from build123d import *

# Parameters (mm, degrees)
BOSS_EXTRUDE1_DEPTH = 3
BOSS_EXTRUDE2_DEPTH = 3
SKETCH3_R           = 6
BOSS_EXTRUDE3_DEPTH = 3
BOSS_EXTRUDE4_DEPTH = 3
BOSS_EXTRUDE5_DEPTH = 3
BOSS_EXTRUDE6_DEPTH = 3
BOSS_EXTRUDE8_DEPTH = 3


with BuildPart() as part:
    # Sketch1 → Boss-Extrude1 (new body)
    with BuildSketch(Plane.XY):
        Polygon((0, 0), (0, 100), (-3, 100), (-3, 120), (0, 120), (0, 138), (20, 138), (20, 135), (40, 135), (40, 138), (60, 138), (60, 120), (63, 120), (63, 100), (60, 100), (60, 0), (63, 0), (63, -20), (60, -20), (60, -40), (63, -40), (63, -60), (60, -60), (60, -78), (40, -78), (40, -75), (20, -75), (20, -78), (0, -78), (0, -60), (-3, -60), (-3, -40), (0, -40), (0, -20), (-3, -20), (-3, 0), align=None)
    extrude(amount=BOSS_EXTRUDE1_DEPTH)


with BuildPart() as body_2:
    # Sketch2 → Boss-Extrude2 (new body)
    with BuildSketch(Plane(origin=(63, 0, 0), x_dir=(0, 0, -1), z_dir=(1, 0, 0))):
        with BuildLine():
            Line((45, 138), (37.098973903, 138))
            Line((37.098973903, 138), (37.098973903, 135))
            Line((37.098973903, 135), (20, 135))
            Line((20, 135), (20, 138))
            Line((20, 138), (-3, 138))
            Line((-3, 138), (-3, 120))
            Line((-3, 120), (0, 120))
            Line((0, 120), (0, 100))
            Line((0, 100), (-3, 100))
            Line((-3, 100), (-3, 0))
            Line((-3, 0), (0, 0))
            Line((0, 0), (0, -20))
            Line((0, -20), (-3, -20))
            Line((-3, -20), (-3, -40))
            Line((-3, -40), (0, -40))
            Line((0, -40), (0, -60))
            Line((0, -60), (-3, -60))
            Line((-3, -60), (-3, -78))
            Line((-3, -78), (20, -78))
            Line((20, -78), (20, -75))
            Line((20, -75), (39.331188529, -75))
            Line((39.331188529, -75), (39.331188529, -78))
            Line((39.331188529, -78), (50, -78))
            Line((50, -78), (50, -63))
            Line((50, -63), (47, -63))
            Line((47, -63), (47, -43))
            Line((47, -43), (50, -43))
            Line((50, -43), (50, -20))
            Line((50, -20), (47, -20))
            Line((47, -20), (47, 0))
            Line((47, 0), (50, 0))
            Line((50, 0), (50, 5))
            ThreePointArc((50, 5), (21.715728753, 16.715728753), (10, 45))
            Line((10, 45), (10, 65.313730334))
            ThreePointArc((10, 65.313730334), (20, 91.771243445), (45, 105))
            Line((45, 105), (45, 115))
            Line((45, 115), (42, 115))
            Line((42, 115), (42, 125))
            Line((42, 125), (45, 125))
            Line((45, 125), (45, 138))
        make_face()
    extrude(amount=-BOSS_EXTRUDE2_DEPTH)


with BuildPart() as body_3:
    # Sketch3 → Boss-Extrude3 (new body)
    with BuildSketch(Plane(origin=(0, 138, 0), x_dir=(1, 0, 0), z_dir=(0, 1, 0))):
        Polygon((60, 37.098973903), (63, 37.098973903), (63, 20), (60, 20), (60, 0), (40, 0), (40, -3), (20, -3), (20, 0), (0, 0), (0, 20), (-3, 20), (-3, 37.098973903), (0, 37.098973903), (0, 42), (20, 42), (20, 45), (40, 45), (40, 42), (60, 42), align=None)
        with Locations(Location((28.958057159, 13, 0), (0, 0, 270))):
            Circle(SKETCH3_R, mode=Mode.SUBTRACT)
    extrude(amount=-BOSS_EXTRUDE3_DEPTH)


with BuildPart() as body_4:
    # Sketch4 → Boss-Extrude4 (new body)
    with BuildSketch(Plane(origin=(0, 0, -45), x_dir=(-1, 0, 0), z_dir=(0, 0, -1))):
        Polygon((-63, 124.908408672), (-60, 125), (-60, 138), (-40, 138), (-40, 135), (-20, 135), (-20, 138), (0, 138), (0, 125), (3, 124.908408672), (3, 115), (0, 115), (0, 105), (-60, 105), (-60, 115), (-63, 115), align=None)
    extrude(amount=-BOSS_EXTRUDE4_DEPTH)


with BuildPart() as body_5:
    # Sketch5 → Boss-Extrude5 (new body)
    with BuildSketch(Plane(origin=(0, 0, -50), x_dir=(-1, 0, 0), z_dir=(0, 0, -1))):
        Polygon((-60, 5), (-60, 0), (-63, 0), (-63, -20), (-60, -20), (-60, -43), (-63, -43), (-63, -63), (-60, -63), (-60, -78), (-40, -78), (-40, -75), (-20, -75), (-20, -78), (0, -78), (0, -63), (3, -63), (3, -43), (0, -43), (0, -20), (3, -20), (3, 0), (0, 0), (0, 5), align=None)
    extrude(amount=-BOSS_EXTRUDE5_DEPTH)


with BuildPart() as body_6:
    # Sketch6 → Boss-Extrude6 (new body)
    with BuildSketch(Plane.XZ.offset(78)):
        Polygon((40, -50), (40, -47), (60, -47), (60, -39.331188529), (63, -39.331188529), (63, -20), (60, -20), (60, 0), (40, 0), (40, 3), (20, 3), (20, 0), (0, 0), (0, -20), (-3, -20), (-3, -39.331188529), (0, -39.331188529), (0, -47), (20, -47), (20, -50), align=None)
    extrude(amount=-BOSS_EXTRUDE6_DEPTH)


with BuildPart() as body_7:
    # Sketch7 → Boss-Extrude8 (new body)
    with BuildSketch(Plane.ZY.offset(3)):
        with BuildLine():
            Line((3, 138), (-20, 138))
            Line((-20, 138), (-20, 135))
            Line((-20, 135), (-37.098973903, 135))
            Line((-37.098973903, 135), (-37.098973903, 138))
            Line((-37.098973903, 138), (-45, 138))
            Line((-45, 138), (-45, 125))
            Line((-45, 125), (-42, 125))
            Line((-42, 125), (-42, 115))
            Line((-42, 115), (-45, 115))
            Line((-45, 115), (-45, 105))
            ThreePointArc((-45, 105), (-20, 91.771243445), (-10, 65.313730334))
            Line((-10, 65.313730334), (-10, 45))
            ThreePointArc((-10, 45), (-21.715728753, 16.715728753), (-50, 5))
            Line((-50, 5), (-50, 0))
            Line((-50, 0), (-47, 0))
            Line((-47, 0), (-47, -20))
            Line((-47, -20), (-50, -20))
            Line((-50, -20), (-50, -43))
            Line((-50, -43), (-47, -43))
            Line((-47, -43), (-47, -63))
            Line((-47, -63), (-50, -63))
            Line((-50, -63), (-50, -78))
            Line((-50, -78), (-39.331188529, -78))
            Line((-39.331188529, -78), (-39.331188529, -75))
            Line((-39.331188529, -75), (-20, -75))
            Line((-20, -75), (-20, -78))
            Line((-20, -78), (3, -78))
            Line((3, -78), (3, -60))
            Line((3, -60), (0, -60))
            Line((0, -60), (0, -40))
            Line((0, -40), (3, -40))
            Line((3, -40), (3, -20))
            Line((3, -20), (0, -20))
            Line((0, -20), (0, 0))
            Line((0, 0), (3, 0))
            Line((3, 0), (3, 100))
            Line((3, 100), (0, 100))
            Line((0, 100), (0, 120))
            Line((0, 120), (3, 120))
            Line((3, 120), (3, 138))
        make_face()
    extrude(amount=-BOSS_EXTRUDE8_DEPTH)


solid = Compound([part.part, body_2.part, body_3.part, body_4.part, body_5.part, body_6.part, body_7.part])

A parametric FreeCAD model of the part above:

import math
import FreeCAD as App
import Part
import Sketcher
from FreeCAD import Vector


def add_polygon(sketch, points):
    """Adds a closed chain of lines whose ends are joined by coincident constraints."""
    first, n = sketch.GeometryCount, len(points)
    for a, b in zip(points, points[1:] + points[:1]):
        sketch.addGeometry(Part.LineSegment(App.Vector(*a, 0), App.Vector(*b, 0)), False)
    for i in range(n):
        sketch.addConstraint(Sketcher.Constraint("Coincident", first + i, 2, first + (i + 1) % n, 1))

doc = App.newDocument("Part")
body = doc.addObject("PartDesign::Body", "Body")

# Sketch on XY plane
sketch1 = doc.addObject("Sketcher::SketchObject", "Sketch")
body.addObject(sketch1)
sketch1.AttachmentSupport = (doc.XY_Plane, [""])
sketch1.MapMode = "FlatFace"
add_polygon(sketch1, [(0, 100), (0, 0), (-3, 0), (-3, -20), (0, -20), (0, -40), (-3, -40), (-3, -60), (0, -60), (0, -78), (20, -78), (20, -75), (40, -75), (40, -78), (60, -78), (60, -60), (63, -60), (63, -40), (60, -40), (60, -20), (63, -20), (63, 0), (60, 0), (60, 100), (63, 100), (63, 120), (60, 120), (60, 138), (40, 138), (40, 135), (20, 135), (20, 138), (0, 138), (0, 120), (-3, 120), (-3, 100)])  # lines 0-35
sketch1.addConstraint(Sketcher.Constraint("Vertical", 0))
sketch1.addConstraint(Sketcher.Constraint("Horizontal", 1))
sketch1.addConstraint(Sketcher.Constraint("Vertical", 2))
sketch1.addConstraint(Sketcher.Constraint("Horizontal", 3))
sketch1.addConstraint(Sketcher.Constraint("Vertical", 4))
sketch1.addConstraint(Sketcher.Constraint("Horizontal", 5))
sketch1.addConstraint(Sketcher.Constraint("Vertical", 6))
sketch1.addConstraint(Sketcher.Constraint("Horizontal", 7))
sketch1.addConstraint(Sketcher.Constraint("Vertical", 8))
sketch1.addConstraint(Sketcher.Constraint("Horizontal", 9))
sketch1.addConstraint(Sketcher.Constraint("Vertical", 10))
sketch1.addConstraint(Sketcher.Constraint("Horizontal", 11))
sketch1.addConstraint(Sketcher.Constraint("Vertical", 12))
sketch1.addConstraint(Sketcher.Constraint("Horizontal", 13))
sketch1.addConstraint(Sketcher.Constraint("Vertical", 14))
sketch1.addConstraint(Sketcher.Constraint("Horizontal", 15))
sketch1.addConstraint(Sketcher.Constraint("Vertical", 16))
sketch1.addConstraint(Sketcher.Constraint("Horizontal", 17))
sketch1.addConstraint(Sketcher.Constraint("Vertical", 18))
sketch1.addConstraint(Sketcher.Constraint("Horizontal", 19))
sketch1.addConstraint(Sketcher.Constraint("Vertical", 20))
sketch1.addConstraint(Sketcher.Constraint("Horizontal", 21))
sketch1.addConstraint(Sketcher.Constraint("Vertical", 22))
sketch1.addConstraint(Sketcher.Constraint("Horizontal", 23))
sketch1.addConstraint(Sketcher.Constraint("Vertical", 24))
sketch1.addConstraint(Sketcher.Constraint("Horizontal", 25))
sketch1.addConstraint(Sketcher.Constraint("Vertical", 26))
sketch1.addConstraint(Sketcher.Constraint("Horizontal", 27))
sketch1.addConstraint(Sketcher.Constraint("Vertical", 28))
sketch1.addConstraint(Sketcher.Constraint("Horizontal", 29))
sketch1.addConstraint(Sketcher.Constraint("Vertical", 30))
sketch1.addConstraint(Sketcher.Constraint("Horizontal", 31))
sketch1.addConstraint(Sketcher.Constraint("Vertical", 32))
sketch1.addConstraint(Sketcher.Constraint("Horizontal", 33))
sketch1.addConstraint(Sketcher.Constraint("Vertical", 34))
sketch1.addConstraint(Sketcher.Constraint("Horizontal", 35))
sketch1.addConstraint(Sketcher.Constraint("Coincident", 0, 2, -1, 1))
sketch1.addConstraint(Sketcher.Constraint("PointOnObject", 3, 2, -2))
sketch1.addConstraint(Sketcher.Constraint("PointOnObject", 7, 2, -2))
sketch1.addConstraint(Sketcher.Constraint("PointOnObject", 20, 2, -1))
sketch1.addConstraint(Sketcher.Constraint("PointOnObject", 31, 2, -2))
sketch1.addConstraint(Sketcher.Constraint("Horizontal", 9, 2, 12, 2))
sketch1.addConstraint(Sketcher.Constraint("Horizontal", 7, 2, 14, 2))
sketch1.addConstraint(Sketcher.Constraint("Horizontal", 5, 2, 16, 2))
sketch1.addConstraint(Sketcher.Constraint("Horizontal", 3, 2, 18, 2))
sketch1.addConstraint(Sketcher.Constraint("Horizontal", 27, 2, 30, 2))
sketch1.addConstraint(Sketcher.Constraint("Horizontal", 25, 2, 32, 2))
sketch1.addConstraint(Sketcher.Constraint("Horizontal", 23, 2, 34, 2))
sketch1.addConstraint(Sketcher.Constraint("Vertical", 2, 2, 5, 2))
sketch1.addConstraint(Sketcher.Constraint("Vertical", 14, 2, 17, 2))
sketch1.addConstraint(Sketcher.Constraint("Vertical", 16, 2, 19, 2))
sketch1.addConstraint(Sketcher.Constraint("Vertical", 18, 2, 21, 2))
sketch1.addConstraint(Sketcher.Constraint("Vertical", 20, 2, 23, 2))
sketch1.addConstraint(Sketcher.Constraint("Vertical", 22, 2, 25, 2))
sketch1.addConstraint(Sketcher.Constraint("Vertical", 12, 2, 27, 2))
sketch1.addConstraint(Sketcher.Constraint("Vertical", 10, 2, 29, 2))
sketch1.addConstraint(Sketcher.Constraint("Vertical", 6, 2, 33, 2))
sketch1.addConstraint(Sketcher.Constraint("Equal", 9, 11))
sketch1.addConstraint(Sketcher.Constraint("Equal", 11, 13))
sketch1.addConstraint(Sketcher.Constraint("Equal", 7, 15))
sketch1.addConstraint(Sketcher.Constraint("Equal", 31, 2))
sketch1.addConstraint(Sketcher.Constraint("Equal", 2, 4))
sketch1.addConstraint(Sketcher.Constraint("Equal", 4, 6))
sketch1.addConstraint(Sketcher.Constraint("Equal", 35, 10))
sketch1.addConstraint(Sketcher.Constraint("Equal", 20, 24))
sketch1.addConstraint(Sketcher.Constraint("Equal", 14, 26))
sketch1.addConstraint(Sketcher.Constraint("Equal", 12, 28))
sketch1.addConstraint(Sketcher.Constraint("DistanceX", 1, 2, 1, 1, 3.0))
sketch1.addConstraint(Sketcher.Constraint("DistanceX", 9, 1, 9, 2, 20.0))
sketch1.addConstraint(Sketcher.Constraint("DistanceY", 0, 2, 0, 1, 100.0))
sketch1.addConstraint(Sketcher.Constraint("DistanceY", 8, 2, 8, 1, 18.0))
pad1 = doc.addObject("PartDesign::Pad", "Pad")
body.addObject(pad1)
pad1.Profile = sketch1
pad1.Length = 3
body2 = doc.addObject("PartDesign::Body", "Body001")

# Sketch on YZ plane
sketch2 = doc.addObject("Sketcher::SketchObject", "Sketch001")
body2.addObject(sketch2)
sketch2.AttachmentSupport = (doc.getObject("YZ_Plane001"), [""])
sketch2.MapMode = "FlatFace"
sketch2.AttachmentOffset = App.Placement(Vector(0, 0, 63), App.Rotation())
sketch2.addGeometry(Part.LineSegment(Vector(138, -45, 0), Vector(138, -37.098974, 0)), False)
sketch2.addGeometry(Part.LineSegment(Vector(138, -37.098974, 0), Vector(135, -37.098974, 0)), False)
sketch2.addGeometry(Part.LineSegment(Vector(135, -37.098974, 0), Vector(135, -20, 0)), False)
sketch2.addGeometry(Part.LineSegment(Vector(135, -20, 0), Vector(138, -20, 0)), False)
sketch2.addGeometry(Part.LineSegment(Vector(138, -20, 0), Vector(138, 3, 0)), False)
sketch2.addGeometry(Part.LineSegment(Vector(138, 3, 0), Vector(120, 3, 0)), False)
sketch2.addGeometry(Part.LineSegment(Vector(120, 3, 0), Vector(120, 0, 0)), False)
sketch2.addGeometry(Part.LineSegment(Vector(120, 0, 0), Vector(100, 0, 0)), False)
sketch2.addGeometry(Part.LineSegment(Vector(100, 0, 0), Vector(100, 3, 0)), False)
sketch2.addGeometry(Part.LineSegment(Vector(100, 3, 0), Vector(0, 3, 0)), False)
sketch2.addGeometry(Part.LineSegment(Vector(0, 3, 0), Vector(0, 0, 0)), False)
sketch2.addGeometry(Part.LineSegment(Vector(0, 0, 0), Vector(-20, 0, 0)), False)
sketch2.addGeometry(Part.LineSegment(Vector(-20, 0, 0), Vector(-20, 3, 0)), False)
sketch2.addGeometry(Part.LineSegment(Vector(-20, 3, 0), Vector(-40, 3, 0)), False)
sketch2.addGeometry(Part.LineSegment(Vector(-40, 3, 0), Vector(-40, 0, 0)), False)
sketch2.addGeometry(Part.LineSegment(Vector(-40, 0, 0), Vector(-60, 0, 0)), False)
sketch2.addGeometry(Part.LineSegment(Vector(-60, 0, 0), Vector(-60, 3, 0)), False)
sketch2.addGeometry(Part.LineSegment(Vector(-60, 3, 0), Vector(-78, 3, 0)), False)
sketch2.addGeometry(Part.LineSegment(Vector(-78, 3, 0), Vector(-78, -20, 0)), False)
sketch2.addGeometry(Part.LineSegment(Vector(-78, -20, 0), Vector(-75, -20, 0)), False)
sketch2.addGeometry(Part.LineSegment(Vector(-75, -20, 0), Vector(-75, -39.331189, 0)), False)
sketch2.addGeometry(Part.LineSegment(Vector(-75, -39.331189, 0), Vector(-78, -39.331189, 0)), False)
sketch2.addGeometry(Part.LineSegment(Vector(-78, -39.331189, 0), Vector(-78, -50, 0)), False)
sketch2.addGeometry(Part.LineSegment(Vector(-78, -50, 0), Vector(-63, -50, 0)), False)
sketch2.addGeometry(Part.LineSegment(Vector(-63, -50, 0), Vector(-63, -47, 0)), False)
sketch2.addGeometry(Part.LineSegment(Vector(-63, -47, 0), Vector(-43, -47, 0)), False)
sketch2.addGeometry(Part.LineSegment(Vector(-43, -47, 0), Vector(-43, -50, 0)), False)
sketch2.addGeometry(Part.LineSegment(Vector(-43, -50, 0), Vector(-20, -50, 0)), False)
sketch2.addGeometry(Part.LineSegment(Vector(-20, -50, 0), Vector(-20, -47, 0)), False)
sketch2.addGeometry(Part.LineSegment(Vector(-20, -47, 0), Vector(0, -47, 0)), False)
sketch2.addGeometry(Part.LineSegment(Vector(0, -47, 0), Vector(0, -50, 0)), False)
sketch2.addGeometry(Part.LineSegment(Vector(0, -50, 0), Vector(5, -50, 0)), False)
sketch2.addGeometry(Part.ArcOfCircle(Part.Circle(Vector(45, -50, 0), Vector(0, 0, 1), 40), math.radians(90), math.radians(180)), False)
sketch2.addGeometry(Part.LineSegment(Vector(45, -10, 0), Vector(65.31373, -10, 0)), False)
sketch2.addGeometry(Part.ArcOfCircle(Part.Circle(Vector(65.31373, -50, 0), Vector(0, 0, 1), 40), math.radians(7.180756), math.radians(90)), False)
sketch2.addGeometry(Part.LineSegment(Vector(105, -45, 0), Vector(115, -45, 0)), False)
sketch2.addGeometry(Part.LineSegment(Vector(115, -45, 0), Vector(115, -42, 0)), False)
sketch2.addGeometry(Part.LineSegment(Vector(115, -42, 0), Vector(125, -42, 0)), False)
sketch2.addGeometry(Part.LineSegment(Vector(125, -42, 0), Vector(125, -45, 0)), False)
sketch2.addGeometry(Part.LineSegment(Vector(125, -45, 0), Vector(138, -45, 0)), False)
sketch2.addConstraint(Sketcher.Constraint("Coincident", 0, 2, 1, 1))
sketch2.addConstraint(Sketcher.Constraint("Coincident", 1, 2, 2, 1))
sketch2.addConstraint(Sketcher.Constraint("Coincident", 2, 2, 3, 1))
sketch2.addConstraint(Sketcher.Constraint("Coincident", 3, 2, 4, 1))
sketch2.addConstraint(Sketcher.Constraint("Coincident", 4, 2, 5, 1))
sketch2.addConstraint(Sketcher.Constraint("Coincident", 5, 2, 6, 1))
sketch2.addConstraint(Sketcher.Constraint("Coincident", 6, 2, 7, 1))
sketch2.addConstraint(Sketcher.Constraint("Coincident", 7, 2, 8, 1))
sketch2.addConstraint(Sketcher.Constraint("Coincident", 8, 2, 9, 1))
sketch2.addConstraint(Sketcher.Constraint("Coincident", 9, 2, 10, 1))
sketch2.addConstraint(Sketcher.Constraint("Coincident", 10, 2, 11, 1))
sketch2.addConstraint(Sketcher.Constraint("Coincident", 11, 2, 12, 1))
sketch2.addConstraint(Sketcher.Constraint("Coincident", 12, 2, 13, 1))
sketch2.addConstraint(Sketcher.Constraint("Coincident", 13, 2, 14, 1))
sketch2.addConstraint(Sketcher.Constraint("Coincident", 14, 2, 15, 1))
sketch2.addConstraint(Sketcher.Constraint("Coincident", 15, 2, 16, 1))
sketch2.addConstraint(Sketcher.Constraint("Coincident", 16, 2, 17, 1))
sketch2.addConstraint(Sketcher.Constraint("Coincident", 17, 2, 18, 1))
sketch2.addConstraint(Sketcher.Constraint("Coincident", 18, 2, 19, 1))
sketch2.addConstraint(Sketcher.Constraint("Coincident", 19, 2, 20, 1))
sketch2.addConstraint(Sketcher.Constraint("Coincident", 20, 2, 21, 1))
sketch2.addConstraint(Sketcher.Constraint("Coincident", 21, 2, 22, 1))
sketch2.addConstraint(Sketcher.Constraint("Coincident", 22, 2, 23, 1))
sketch2.addConstraint(Sketcher.Constraint("Coincident", 23, 2, 24, 1))
sketch2.addConstraint(Sketcher.Constraint("Coincident", 24, 2, 25, 1))
sketch2.addConstraint(Sketcher.Constraint("Coincident", 25, 2, 26, 1))
sketch2.addConstraint(Sketcher.Constraint("Coincident", 26, 2, 27, 1))
sketch2.addConstraint(Sketcher.Constraint("Coincident", 27, 2, 28, 1))
sketch2.addConstraint(Sketcher.Constraint("Coincident", 28, 2, 29, 1))
sketch2.addConstraint(Sketcher.Constraint("Coincident", 29, 2, 30, 1))
sketch2.addConstraint(Sketcher.Constraint("Coincident", 30, 2, 31, 1))
sketch2.addConstraint(Sketcher.Constraint("Coincident", 31, 2, 32, 2))
sketch2.addConstraint(Sketcher.Constraint("Tangent", 32, 1, 33, 1))
sketch2.addConstraint(Sketcher.Constraint("Tangent", 33, 2, 34, 2))
sketch2.addConstraint(Sketcher.Constraint("Coincident", 34, 1, 35, 1))
sketch2.addConstraint(Sketcher.Constraint("Coincident", 35, 2, 36, 1))
sketch2.addConstraint(Sketcher.Constraint("Coincident", 36, 2, 37, 1))
sketch2.addConstraint(Sketcher.Constraint("Coincident", 37, 2, 38, 1))
sketch2.addConstraint(Sketcher.Constraint("Coincident", 38, 2, 39, 1))
sketch2.addConstraint(Sketcher.Constraint("Coincident", 39, 2, 0, 1))
sketch2.addConstraint(Sketcher.Constraint("Vertical", 0))
sketch2.addConstraint(Sketcher.Constraint("Horizontal", 1))
sketch2.addConstraint(Sketcher.Constraint("Vertical", 2))
sketch2.addConstraint(Sketcher.Constraint("Horizontal", 3))
sketch2.addConstraint(Sketcher.Constraint("Vertical", 4))
sketch2.addConstraint(Sketcher.Constraint("Horizontal", 5))
sketch2.addConstraint(Sketcher.Constraint("Vertical", 6))
sketch2.addConstraint(Sketcher.Constraint("Horizontal", 7))
sketch2.addConstraint(Sketcher.Constraint("Vertical", 8))
sketch2.addConstraint(Sketcher.Constraint("Horizontal", 9))
sketch2.addConstraint(Sketcher.Constraint("Vertical", 10))
sketch2.addConstraint(Sketcher.Constraint("Horizontal", 11))
sketch2.addConstraint(Sketcher.Constraint("Vertical", 12))
sketch2.addConstraint(Sketcher.Constraint("Horizontal", 13))
sketch2.addConstraint(Sketcher.Constraint("Vertical", 14))
sketch2.addConstraint(Sketcher.Constraint("Horizontal", 15))
sketch2.addConstraint(Sketcher.Constraint("Vertical", 16))
sketch2.addConstraint(Sketcher.Constraint("Horizontal", 17))
sketch2.addConstraint(Sketcher.Constraint("Vertical", 18))
sketch2.addConstraint(Sketcher.Constraint("Horizontal", 19))
sketch2.addConstraint(Sketcher.Constraint("Vertical", 20))
sketch2.addConstraint(Sketcher.Constraint("Horizontal", 21))
sketch2.addConstraint(Sketcher.Constraint("Vertical", 22))
sketch2.addConstraint(Sketcher.Constraint("Horizontal", 23))
sketch2.addConstraint(Sketcher.Constraint("Vertical", 24))
sketch2.addConstraint(Sketcher.Constraint("Horizontal", 25))
sketch2.addConstraint(Sketcher.Constraint("Vertical", 26))
sketch2.addConstraint(Sketcher.Constraint("Horizontal", 27))
sketch2.addConstraint(Sketcher.Constraint("Vertical", 28))
sketch2.addConstraint(Sketcher.Constraint("Horizontal", 29))
sketch2.addConstraint(Sketcher.Constraint("Vertical", 30))
sketch2.addConstraint(Sketcher.Constraint("Horizontal", 31))
sketch2.addConstraint(Sketcher.Constraint("Horizontal", 33))
sketch2.addConstraint(Sketcher.Constraint("Horizontal", 35))
sketch2.addConstraint(Sketcher.Constraint("Vertical", 36))
sketch2.addConstraint(Sketcher.Constraint("Horizontal", 37))
sketch2.addConstraint(Sketcher.Constraint("Vertical", 38))
sketch2.addConstraint(Sketcher.Constraint("Horizontal", 39))
sketch2.addConstraint(Sketcher.Constraint("Coincident", 10, 2, -1, 1))
sketch2.addConstraint(Sketcher.Constraint("Equal", 32, 34))
sketch2.addConstraint(Sketcher.Constraint("PointOnObject", 6, 2, -1))
sketch2.addConstraint(Sketcher.Constraint("PointOnObject", 14, 2, -1))
sketch2.addConstraint(Sketcher.Constraint("PointOnObject", 29, 2, -2))
sketch2.addConstraint(Sketcher.Constraint("Horizontal", 5, 2, 8, 2))
sketch2.addConstraint(Sketcher.Constraint("Horizontal", 9, 2, 12, 2))
sketch2.addConstraint(Sketcher.Constraint("Horizontal", 13, 2, 16, 2))
sketch2.addConstraint(Sketcher.Constraint("Horizontal", 3, 2, 18, 2))
sketch2.addConstraint(Sketcher.Constraint("Horizontal", 34, 3, 22, 2))
sketch2.addConstraint(Sketcher.Constraint("Horizontal", 23, 2, 26, 2))
sketch2.addConstraint(Sketcher.Constraint("Horizontal", 25, 2, 28, 2))
sketch2.addConstraint(Sketcher.Constraint("Horizontal", 27, 2, 30, 2))
sketch2.addConstraint(Sketcher.Constraint("Horizontal", 35, 2, 38, 2))
sketch2.addConstraint(Sketcher.Constraint("Vertical", 0, 2, 3, 2))
sketch2.addConstraint(Sketcher.Constraint("Vertical", 18, 2, 21, 2))
sketch2.addConstraint(Sketcher.Constraint("Vertical", 12, 2, 27, 2))
sketch2.addConstraint(Sketcher.Constraint("Equal", 7, 11))
sketch2.addConstraint(Sketcher.Constraint("Equal", 11, 13))
sketch2.addConstraint(Sketcher.Constraint("Equal", 13, 15))
sketch2.addConstraint(Sketcher.Constraint("Equal", 5, 17))
sketch2.addConstraint(Sketcher.Constraint("Equal", 3, 19))
sketch2.addConstraint(Sketcher.Constraint("Equal", 15, 25))
sketch2.addConstraint(Sketcher.Constraint("Equal", 35, 37))
sketch2.addConstraint(Sketcher.Constraint("Equal", 27, 4))
sketch2.addConstraint(Sketcher.Constraint("Equal", 21, 6))
sketch2.addConstraint(Sketcher.Constraint("Equal", 16, 24))
sketch2.addConstraint(Sketcher.Constraint("Equal", 30, 36))
sketch2.addConstraint(Sketcher.Constraint("Radius", 32, 40.0))
sketch2.addConstraint(Sketcher.Constraint("DistanceX", 1, 2, 1, 1, 3.0))
sketch2.addConstraint(Sketcher.Constraint("DistanceX", 5, 2, 5, 1, 18.0))
sketch2.addConstraint(Sketcher.Constraint("DistanceX", 7, 2, 7, 1, 20.0))
sketch2.addConstraint(Sketcher.Constraint("DistanceX", 9, 2, 9, 1, 100.0))
sketch2.addConstraint(Sketcher.Constraint("DistanceX", 23, 1, 23, 2, 15.0))
sketch2.addConstraint(Sketcher.Constraint("DistanceX", 31, 1, 31, 2, 5.0))
sketch2.addConstraint(Sketcher.Constraint("DistanceX", 35, 1, 35, 2, 10.0))
sketch2.addConstraint(Sketcher.Constraint("DistanceX", 39, 1, 39, 2, 13.0))
sketch2.addConstraint(Sketcher.Constraint("DistanceY", 32, 3, -1, 1, 50.0))
sketch2.addConstraint(Sketcher.Constraint("DistanceY", 34, 1, -1, 1, 45.0))
sketch2.addConstraint(Sketcher.Constraint("DistanceY", 20, 2, 20, 1, 19.331189))
sketch2.addConstraint(Sketcher.Constraint("DistanceY", 0, 1, 0, 2, 7.901026))
pad2 = doc.addObject("PartDesign::Pad", "Pad001")
body2.addObject(pad2)
pad2.Profile = sketch2
pad2.Length = 3
pad2.Reversed = True
body3 = doc.addObject("PartDesign::Body", "Body002")

# Sketch on XZ plane
sketch3 = doc.addObject("Sketcher::SketchObject", "Sketch002")
body3.addObject(sketch3)
sketch3.AttachmentSupport = (doc.getObject("XZ_Plane002"), [""])
sketch3.MapMode = "FlatFace"
sketch3.AttachmentOffset = App.Placement(Vector(0, 0, -138), App.Rotation())
add_polygon(sketch3, [(63, -37.098974), (60, -37.098974), (60, -42), (40, -42), (40, -45), (20, -45), (20, -42), (0, -42), (0, -37.098974), (-3, -37.098974), (-3, -20), (0, -20), (0, 0), (20, 0), (20, 3), (40, 3), (40, 0), (60, 0), (60, -20), (63, -20)])  # lines 0-19
sketch3.addGeometry(Part.Circle(Vector(28.958057, -13, 0), Vector(0, 0, 1), 6), False)  # 20
sketch3.addConstraint(Sketcher.Constraint("Horizontal", 0))
sketch3.addConstraint(Sketcher.Constraint("Vertical", 1))
sketch3.addConstraint(Sketcher.Constraint("Horizontal", 2))
sketch3.addConstraint(Sketcher.Constraint("Vertical", 3))
sketch3.addConstraint(Sketcher.Constraint("Horizontal", 4))
sketch3.addConstraint(Sketcher.Constraint("Vertical", 5))
sketch3.addConstraint(Sketcher.Constraint("Horizontal", 6))
sketch3.addConstraint(Sketcher.Constraint("Vertical", 7))
sketch3.addConstraint(Sketcher.Constraint("Horizontal", 8))
sketch3.addConstraint(Sketcher.Constraint("Vertical", 9))
sketch3.addConstraint(Sketcher.Constraint("Horizontal", 10))
sketch3.addConstraint(Sketcher.Constraint("Vertical", 11))
sketch3.addConstraint(Sketcher.Constraint("Horizontal", 12))
sketch3.addConstraint(Sketcher.Constraint("Vertical", 13))
sketch3.addConstraint(Sketcher.Constraint("Horizontal", 14))
sketch3.addConstraint(Sketcher.Constraint("Vertical", 15))
sketch3.addConstraint(Sketcher.Constraint("Horizontal", 16))
sketch3.addConstraint(Sketcher.Constraint("Vertical", 17))
sketch3.addConstraint(Sketcher.Constraint("Horizontal", 18))
sketch3.addConstraint(Sketcher.Constraint("Vertical", 19))
sketch3.addConstraint(Sketcher.Constraint("Coincident", 11, 2, -1, 1))
sketch3.addConstraint(Sketcher.Constraint("PointOnObject", 6, 2, -2))
sketch3.addConstraint(Sketcher.Constraint("PointOnObject", 15, 2, -1))
sketch3.addConstraint(Sketcher.Constraint("Horizontal", 2, 2, 5, 2))
sketch3.addConstraint(Sketcher.Constraint("Horizontal", 0, 2, 7, 2))
sketch3.addConstraint(Sketcher.Constraint("Horizontal", 10, 2, 17, 2))
sketch3.addConstraint(Sketcher.Constraint("Vertical", 5, 2, 12, 2))
sketch3.addConstraint(Sketcher.Constraint("Vertical", 3, 2, 14, 2))
sketch3.addConstraint(Sketcher.Constraint("Vertical", 1, 2, 16, 2))
sketch3.addConstraint(Sketcher.Constraint("Equal", 2, 4))
sketch3.addConstraint(Sketcher.Constraint("Equal", 4, 6))
sketch3.addConstraint(Sketcher.Constraint("Equal", 0, 8))
sketch3.addConstraint(Sketcher.Constraint("Equal", 18, 3))
sketch3.addConstraint(Sketcher.Constraint("Equal", 16, 11))
sketch3.addConstraint(Sketcher.Constraint("Equal", 5, 13))
sketch3.addConstraint(Sketcher.Constraint("Diameter", 20, 12.0))
sketch3.addConstraint(Sketcher.Constraint("DistanceX", 0, 2, 0, 1, 3.0))
sketch3.addConstraint(Sketcher.Constraint("DistanceX", 2, 2, 2, 1, 20.0))
sketch3.addConstraint(Sketcher.Constraint("DistanceY", 20, 3, -1, 1, 13.0))
sketch3.addConstraint(Sketcher.Constraint("DistanceY", 1, 2, -1, 1, 42.0))
sketch3.addConstraint(Sketcher.Constraint("DistanceY", 1, 2, 1, 1, 4.901026))
sketch3.addConstraint(Sketcher.Constraint("DistanceX", -1, 1, 20, 3, 28.958057))
pad3 = doc.addObject("PartDesign::Pad", "Pad002")
body3.addObject(pad3)
pad3.Profile = sketch3
pad3.Length = 3
body4 = doc.addObject("PartDesign::Body", "Body003")

# Sketch on XY plane
sketch4 = doc.addObject("Sketcher::SketchObject", "Sketch003")
body4.addObject(sketch4)
sketch4.AttachmentSupport = (doc.getObject("XY_Plane003"), [""])
sketch4.MapMode = "FlatFace"
sketch4.AttachmentOffset = App.Placement(Vector(0, 0, -45), App.Rotation())
add_polygon(sketch4, [(60, 125), (63, 124.908409), (63, 115), (60, 115), (60, 105), (0, 105), (0, 115), (-3, 115), (-3, 124.908409), (0, 125), (0, 138), (20, 138), (20, 135), (40, 135), (40, 138), (60, 138)])  # lines 0-15
sketch4.addConstraint(Sketcher.Constraint("Vertical", 1))
sketch4.addConstraint(Sketcher.Constraint("Horizontal", 2))
sketch4.addConstraint(Sketcher.Constraint("Vertical", 3))
sketch4.addConstraint(Sketcher.Constraint("Horizontal", 4))
sketch4.addConstraint(Sketcher.Constraint("Vertical", 5))
sketch4.addConstraint(Sketcher.Constraint("Horizontal", 6))
sketch4.addConstraint(Sketcher.Constraint("Vertical", 7))
sketch4.addConstraint(Sketcher.Constraint("Vertical", 9))
sketch4.addConstraint(Sketcher.Constraint("Horizontal", 10))
sketch4.addConstraint(Sketcher.Constraint("Vertical", 11))
sketch4.addConstraint(Sketcher.Constraint("Horizontal", 12))
sketch4.addConstraint(Sketcher.Constraint("Vertical", 13))
sketch4.addConstraint(Sketcher.Constraint("Horizontal", 14))
sketch4.addConstraint(Sketcher.Constraint("Vertical", 15))
sketch4.addConstraint(Sketcher.Constraint("PointOnObject", 4, 2, -2))
sketch4.addConstraint(Sketcher.Constraint("PointOnObject", 8, 2, -2))
sketch4.addConstraint(Sketcher.Constraint("Horizontal", 2, 2, 5, 2))
sketch4.addConstraint(Sketcher.Constraint("Horizontal", 0, 2, 7, 2))
sketch4.addConstraint(Sketcher.Constraint("Horizontal", 10, 2, 13, 2))
sketch4.addConstraint(Sketcher.Constraint("Horizontal", 8, 2, 15, 2))
sketch4.addConstraint(Sketcher.Constraint("Vertical", 3, 2, 14, 2))
sketch4.addConstraint(Sketcher.Constraint("Equal", 2, 6))
sketch4.addConstraint(Sketcher.Constraint("Equal", 10, 12))
sketch4.addConstraint(Sketcher.Constraint("Equal", 12, 14))
sketch4.addConstraint(Sketcher.Constraint("Equal", 6, 11))
sketch4.addConstraint(Sketcher.Constraint("DistanceX", 2, 2, 2, 1, 3.0))
sketch4.addConstraint(Sketcher.Constraint("DistanceX", 4, 2, 4, 1, 60.0))
sketch4.addConstraint(Sketcher.Constraint("DistanceY", 3, 2, 3, 1, 10.0))
sketch4.addConstraint(Sketcher.Constraint("DistanceY", 9, 1, 9, 2, 13.0))
sketch4.addConstraint(Sketcher.Constraint("DistanceY", -1, 1, 1, 2, 115.0))
sketch4.addConstraint(Sketcher.Constraint("DistanceY", -1, 1, 8, 2, 125.0))
sketch4.addConstraint(Sketcher.Constraint("DistanceY", 1, 2, 1, 1, 9.908409))
pad4 = doc.addObject("PartDesign::Pad", "Pad003")
body4.addObject(pad4)
pad4.Profile = sketch4
pad4.Length = 3
body5 = doc.addObject("PartDesign::Body", "Body004")

# Sketch on XY plane
sketch5 = doc.addObject("Sketcher::SketchObject", "Sketch004")
body5.addObject(sketch5)
sketch5.AttachmentSupport = (doc.getObject("XY_Plane004"), [""])
sketch5.MapMode = "FlatFace"
sketch5.AttachmentOffset = App.Placement(Vector(0, 0, -50), App.Rotation())
add_polygon(sketch5, [(60, 5), (60, 0), (63, 0), (63, -20), (60, -20), (60, -43), (63, -43), (63, -63), (60, -63), (60, -78), (40, -78), (40, -75), (20, -75), (20, -78), (0, -78), (0, -63), (-3, -63), (-3, -43), (0, -43), (0, -20), (-3, -20), (-3, 0), (0, 0), (0, 5)])  # lines 0-23
sketch5.addConstraint(Sketcher.Constraint("Vertical", 0))
sketch5.addConstraint(Sketcher.Constraint("Horizontal", 1))
sketch5.addConstraint(Sketcher.Constraint("Vertical", 2))
sketch5.addConstraint(Sketcher.Constraint("Horizontal", 3))
sketch5.addConstraint(Sketcher.Constraint("Vertical", 4))
sketch5.addConstraint(Sketcher.Constraint("Horizontal", 5))
sketch5.addConstraint(Sketcher.Constraint("Vertical", 6))
sketch5.addConstraint(Sketcher.Constraint("Horizontal", 7))
sketch5.addConstraint(Sketcher.Constraint("Vertical", 8))
sketch5.addConstraint(Sketcher.Constraint("Horizontal", 9))
sketch5.addConstraint(Sketcher.Constraint("Vertical", 10))
sketch5.addConstraint(Sketcher.Constraint("Horizontal", 11))
sketch5.addConstraint(Sketcher.Constraint("Vertical", 12))
sketch5.addConstraint(Sketcher.Constraint("Horizontal", 13))
sketch5.addConstraint(Sketcher.Constraint("Vertical", 14))
sketch5.addConstraint(Sketcher.Constraint("Horizontal", 15))
sketch5.addConstraint(Sketcher.Constraint("Vertical", 16))
sketch5.addConstraint(Sketcher.Constraint("Horizontal", 17))
sketch5.addConstraint(Sketcher.Constraint("Vertical", 18))
sketch5.addConstraint(Sketcher.Constraint("Horizontal", 19))
sketch5.addConstraint(Sketcher.Constraint("Vertical", 20))
sketch5.addConstraint(Sketcher.Constraint("Horizontal", 21))
sketch5.addConstraint(Sketcher.Constraint("Vertical", 22))
sketch5.addConstraint(Sketcher.Constraint("Horizontal", 23))
sketch5.addConstraint(Sketcher.Constraint("Coincident", 21, 2, -1, 1))
sketch5.addConstraint(Sketcher.Constraint("PointOnObject", 0, 2, -1))
sketch5.addConstraint(Sketcher.Constraint("PointOnObject", 13, 2, -2))
sketch5.addConstraint(Sketcher.Constraint("PointOnObject", 17, 2, -2))
sketch5.addConstraint(Sketcher.Constraint("Horizontal", 9, 2, 12, 2))
sketch5.addConstraint(Sketcher.Constraint("Horizontal", 7, 2, 14, 2))
sketch5.addConstraint(Sketcher.Constraint("Horizontal", 5, 2, 16, 2))
sketch5.addConstraint(Sketcher.Constraint("Horizontal", 3, 2, 18, 2))
sketch5.addConstraint(Sketcher.Constraint("Vertical", 0, 2, 3, 2))
sketch5.addConstraint(Sketcher.Constraint("Vertical", 2, 2, 5, 2))
sketch5.addConstraint(Sketcher.Constraint("Vertical", 4, 2, 7, 2))
sketch5.addConstraint(Sketcher.Constraint("Vertical", 16, 2, 19, 2))
sketch5.addConstraint(Sketcher.Constraint("Equal", 9, 11))
sketch5.addConstraint(Sketcher.Constraint("Equal", 11, 13))
sketch5.addConstraint(Sketcher.Constraint("Equal", 7, 15))
sketch5.addConstraint(Sketcher.Constraint("Equal", 13, 2))
sketch5.addConstraint(Sketcher.Constraint("Equal", 2, 6))
sketch5.addConstraint(Sketcher.Constraint("Equal", 21, 10))
sketch5.addConstraint(Sketcher.Constraint("DistanceX", 1, 1, 1, 2, 3.0))
sketch5.addConstraint(Sketcher.Constraint("DistanceX", 9, 2, 9, 1, 20.0))
sketch5.addConstraint(Sketcher.Constraint("DistanceY", 0, 2, 0, 1, 5.0))
sketch5.addConstraint(Sketcher.Constraint("DistanceY", 4, 2, 4, 1, 23.0))
sketch5.addConstraint(Sketcher.Constraint("DistanceY", 8, 2, 8, 1, 15.0))
pad5 = doc.addObject("PartDesign::Pad", "Pad004")
body5.addObject(pad5)
pad5.Profile = sketch5
pad5.Length = 3
body6 = doc.addObject("PartDesign::Body", "Body005")

# Sketch on XZ plane
sketch6 = doc.addObject("Sketcher::SketchObject", "Sketch005")
body6.addObject(sketch6)
sketch6.AttachmentSupport = (doc.getObject("XZ_Plane005"), [""])
sketch6.MapMode = "FlatFace"
sketch6.AttachmentOffset = App.Placement(Vector(0, 0, 78), App.Rotation())
add_polygon(sketch6, [(40, -50), (40, -47), (60, -47), (60, -39.331189), (63, -39.331189), (63, -20), (60, -20), (60, 0), (40, 0), (40, 3), (20, 3), (20, 0), (0, 0), (0, -20), (-3, -20), (-3, -39.331189), (0, -39.331189), (0, -47), (20, -47), (20, -50)])  # lines 0-19
sketch6.addConstraint(Sketcher.Constraint("Vertical", 0))
sketch6.addConstraint(Sketcher.Constraint("Horizontal", 1))
sketch6.addConstraint(Sketcher.Constraint("Vertical", 2))
sketch6.addConstraint(Sketcher.Constraint("Horizontal", 3))
sketch6.addConstraint(Sketcher.Constraint("Vertical", 4))
sketch6.addConstraint(Sketcher.Constraint("Horizontal", 5))
sketch6.addConstraint(Sketcher.Constraint("Vertical", 6))
sketch6.addConstraint(Sketcher.Constraint("Horizontal", 7))
sketch6.addConstraint(Sketcher.Constraint("Vertical", 8))
sketch6.addConstraint(Sketcher.Constraint("Horizontal", 9))
sketch6.addConstraint(Sketcher.Constraint("Vertical", 10))
sketch6.addConstraint(Sketcher.Constraint("Horizontal", 11))
sketch6.addConstraint(Sketcher.Constraint("Vertical", 12))
sketch6.addConstraint(Sketcher.Constraint("Horizontal", 13))
sketch6.addConstraint(Sketcher.Constraint("Vertical", 14))
sketch6.addConstraint(Sketcher.Constraint("Horizontal", 15))
sketch6.addConstraint(Sketcher.Constraint("Vertical", 16))
sketch6.addConstraint(Sketcher.Constraint("Horizontal", 17))
sketch6.addConstraint(Sketcher.Constraint("Vertical", 18))
sketch6.addConstraint(Sketcher.Constraint("Horizontal", 19))
sketch6.addConstraint(Sketcher.Constraint("Coincident", 11, 2, -1, 1))
sketch6.addConstraint(Sketcher.Constraint("PointOnObject", 6, 2, -1))
sketch6.addConstraint(Sketcher.Constraint("PointOnObject", 15, 2, -2))
sketch6.addConstraint(Sketcher.Constraint("Horizontal", 5, 2, 12, 2))
sketch6.addConstraint(Sketcher.Constraint("Horizontal", 3, 2, 14, 2))
sketch6.addConstraint(Sketcher.Constraint("Horizontal", 1, 2, 16, 2))
sketch6.addConstraint(Sketcher.Constraint("Vertical", 2, 2, 5, 2))
sketch6.addConstraint(Sketcher.Constraint("Vertical", 0, 2, 7, 2))
sketch6.addConstraint(Sketcher.Constraint("Vertical", 10, 2, 17, 2))
sketch6.addConstraint(Sketcher.Constraint("Equal", 7, 9))
sketch6.addConstraint(Sketcher.Constraint("Equal", 9, 11))
sketch6.addConstraint(Sketcher.Constraint("Equal", 5, 13))
sketch6.addConstraint(Sketcher.Constraint("Equal", 15, 0))
sketch6.addConstraint(Sketcher.Constraint("Equal", 19, 6))
sketch6.addConstraint(Sketcher.Constraint("Equal", 0, 8))
sketch6.addConstraint(Sketcher.Constraint("DistanceX", 1, 1, 1, 2, 20.0))
sketch6.addConstraint(Sketcher.Constraint("DistanceX", 3, 1, 3, 2, 3.0))
sketch6.addConstraint(Sketcher.Constraint("DistanceY", 0, 2, -1, 1, 47.0))
sketch6.addConstraint(Sketcher.Constraint("DistanceY", 2, 1, 2, 2, 7.668811))
pad6 = doc.addObject("PartDesign::Pad", "Pad005")
body6.addObject(pad6)
pad6.Profile = sketch6
pad6.Length = 3
pad6.Reversed = True
body7 = doc.addObject("PartDesign::Body", "Body006")

# Sketch on YZ plane
sketch7 = doc.addObject("Sketcher::SketchObject", "Sketch006")
body7.addObject(sketch7)
sketch7.AttachmentSupport = (doc.getObject("YZ_Plane006"), [""])
sketch7.MapMode = "FlatFace"
sketch7.AttachmentOffset = App.Placement(Vector(0, 0, -3), App.Rotation())
sketch7.addGeometry(Part.LineSegment(Vector(138, 3, 0), Vector(138, -20, 0)), False)
sketch7.addGeometry(Part.LineSegment(Vector(138, -20, 0), Vector(135, -20, 0)), False)
sketch7.addGeometry(Part.LineSegment(Vector(135, -20, 0), Vector(135, -37.098974, 0)), False)
sketch7.addGeometry(Part.LineSegment(Vector(135, -37.098974, 0), Vector(138, -37.098974, 0)), False)
sketch7.addGeometry(Part.LineSegment(Vector(138, -37.098974, 0), Vector(138, -45, 0)), False)
sketch7.addGeometry(Part.LineSegment(Vector(138, -45, 0), Vector(125, -45, 0)), False)
sketch7.addGeometry(Part.LineSegment(Vector(125, -45, 0), Vector(125, -42, 0)), False)
sketch7.addGeometry(Part.LineSegment(Vector(125, -42, 0), Vector(115, -42, 0)), False)
sketch7.addGeometry(Part.LineSegment(Vector(115, -42, 0), Vector(115, -45, 0)), False)
sketch7.addGeometry(Part.LineSegment(Vector(115, -45, 0), Vector(105, -45, 0)), False)
sketch7.addGeometry(Part.ArcOfCircle(Part.Circle(Vector(65.31373, -50, 0), Vector(0, 0, 1), 40), math.radians(7.180756), math.radians(90)), False)
sketch7.addGeometry(Part.LineSegment(Vector(65.31373, -10, 0), Vector(45, -10, 0)), False)
sketch7.addGeometry(Part.ArcOfCircle(Part.Circle(Vector(45, -50, 0), Vector(0, 0, 1), 40), math.radians(90), math.radians(180)), False)
sketch7.addGeometry(Part.LineSegment(Vector(5, -50, 0), Vector(0, -50, 0)), False)
sketch7.addGeometry(Part.LineSegment(Vector(0, -50, 0), Vector(0, -47, 0)), False)
sketch7.addGeometry(Part.LineSegment(Vector(0, -47, 0), Vector(-20, -47, 0)), False)
sketch7.addGeometry(Part.LineSegment(Vector(-20, -47, 0), Vector(-20, -50, 0)), False)
sketch7.addGeometry(Part.LineSegment(Vector(-20, -50, 0), Vector(-43, -50, 0)), False)
sketch7.addGeometry(Part.LineSegment(Vector(-43, -50, 0), Vector(-43, -47, 0)), False)
sketch7.addGeometry(Part.LineSegment(Vector(-43, -47, 0), Vector(-63, -47, 0)), False)
sketch7.addGeometry(Part.LineSegment(Vector(-63, -47, 0), Vector(-63, -50, 0)), False)
sketch7.addGeometry(Part.LineSegment(Vector(-63, -50, 0), Vector(-78, -50, 0)), False)
sketch7.addGeometry(Part.LineSegment(Vector(-78, -50, 0), Vector(-78, -39.331189, 0)), False)
sketch7.addGeometry(Part.LineSegment(Vector(-78, -39.331189, 0), Vector(-75, -39.331189, 0)), False)
sketch7.addGeometry(Part.LineSegment(Vector(-75, -39.331189, 0), Vector(-75, -20, 0)), False)
sketch7.addGeometry(Part.LineSegment(Vector(-75, -20, 0), Vector(-78, -20, 0)), False)
sketch7.addGeometry(Part.LineSegment(Vector(-78, -20, 0), Vector(-78, 3, 0)), False)
sketch7.addGeometry(Part.LineSegment(Vector(-78, 3, 0), Vector(-60, 3, 0)), False)
sketch7.addGeometry(Part.LineSegment(Vector(-60, 3, 0), Vector(-60, 0, 0)), False)
sketch7.addGeometry(Part.LineSegment(Vector(-60, 0, 0), Vector(-40, 0, 0)), False)
sketch7.addGeometry(Part.LineSegment(Vector(-40, 0, 0), Vector(-40, 3, 0)), False)
sketch7.addGeometry(Part.LineSegment(Vector(-40, 3, 0), Vector(-20, 3, 0)), False)
sketch7.addGeometry(Part.LineSegment(Vector(-20, 3, 0), Vector(-20, 0, 0)), False)
sketch7.addGeometry(Part.LineSegment(Vector(-20, 0, 0), Vector(0, 0, 0)), False)
sketch7.addGeometry(Part.LineSegment(Vector(0, 0, 0), Vector(0, 3, 0)), False)
sketch7.addGeometry(Part.LineSegment(Vector(0, 3, 0), Vector(100, 3, 0)), False)
sketch7.addGeometry(Part.LineSegment(Vector(100, 3, 0), Vector(100, 0, 0)), False)
sketch7.addGeometry(Part.LineSegment(Vector(100, 0, 0), Vector(120, 0, 0)), False)
sketch7.addGeometry(Part.LineSegment(Vector(120, 0, 0), Vector(120, 3, 0)), False)
sketch7.addGeometry(Part.LineSegment(Vector(120, 3, 0), Vector(138, 3, 0)), False)
sketch7.addConstraint(Sketcher.Constraint("Coincident", 0, 2, 1, 1))
sketch7.addConstraint(Sketcher.Constraint("Coincident", 1, 2, 2, 1))
sketch7.addConstraint(Sketcher.Constraint("Coincident", 2, 2, 3, 1))
sketch7.addConstraint(Sketcher.Constraint("Coincident", 3, 2, 4, 1))
sketch7.addConstraint(Sketcher.Constraint("Coincident", 4, 2, 5, 1))
sketch7.addConstraint(Sketcher.Constraint("Coincident", 5, 2, 6, 1))
sketch7.addConstraint(Sketcher.Constraint("Coincident", 6, 2, 7, 1))
sketch7.addConstraint(Sketcher.Constraint("Coincident", 7, 2, 8, 1))
sketch7.addConstraint(Sketcher.Constraint("Coincident", 8, 2, 9, 1))
sketch7.addConstraint(Sketcher.Constraint("Coincident", 9, 2, 10, 1))
sketch7.addConstraint(Sketcher.Constraint("Tangent", 10, 2, 11, 1))
sketch7.addConstraint(Sketcher.Constraint("Tangent", 11, 2, 12, 1))
sketch7.addConstraint(Sketcher.Constraint("Coincident", 12, 2, 13, 1))
sketch7.addConstraint(Sketcher.Constraint("Coincident", 13, 2, 14, 1))
sketch7.addConstraint(Sketcher.Constraint("Coincident", 14, 2, 15, 1))
sketch7.addConstraint(Sketcher.Constraint("Coincident", 15, 2, 16, 1))
sketch7.addConstraint(Sketcher.Constraint("Coincident", 16, 2, 17, 1))
sketch7.addConstraint(Sketcher.Constraint("Coincident", 17, 2, 18, 1))
sketch7.addConstraint(Sketcher.Constraint("Coincident", 18, 2, 19, 1))
sketch7.addConstraint(Sketcher.Constraint("Coincident", 19, 2, 20, 1))
sketch7.addConstraint(Sketcher.Constraint("Coincident", 20, 2, 21, 1))
sketch7.addConstraint(Sketcher.Constraint("Coincident", 21, 2, 22, 1))
sketch7.addConstraint(Sketcher.Constraint("Coincident", 22, 2, 23, 1))
sketch7.addConstraint(Sketcher.Constraint("Coincident", 23, 2, 24, 1))
sketch7.addConstraint(Sketcher.Constraint("Coincident", 24, 2, 25, 1))
sketch7.addConstraint(Sketcher.Constraint("Coincident", 25, 2, 26, 1))
sketch7.addConstraint(Sketcher.Constraint("Coincident", 26, 2, 27, 1))
sketch7.addConstraint(Sketcher.Constraint("Coincident", 27, 2, 28, 1))
sketch7.addConstraint(Sketcher.Constraint("Coincident", 28, 2, 29, 1))
sketch7.addConstraint(Sketcher.Constraint("Coincident", 29, 2, 30, 1))
sketch7.addConstraint(Sketcher.Constraint("Coincident", 30, 2, 31, 1))
sketch7.addConstraint(Sketcher.Constraint("Coincident", 31, 2, 32, 1))
sketch7.addConstraint(Sketcher.Constraint("Coincident", 32, 2, 33, 1))
sketch7.addConstraint(Sketcher.Constraint("Coincident", 33, 2, 34, 1))
sketch7.addConstraint(Sketcher.Constraint("Coincident", 34, 2, 35, 1))
sketch7.addConstraint(Sketcher.Constraint("Coincident", 35, 2, 36, 1))
sketch7.addConstraint(Sketcher.Constraint("Coincident", 36, 2, 37, 1))
sketch7.addConstraint(Sketcher.Constraint("Coincident", 37, 2, 38, 1))
sketch7.addConstraint(Sketcher.Constraint("Coincident", 38, 2, 39, 1))
sketch7.addConstraint(Sketcher.Constraint("Coincident", 39, 2, 0, 1))
sketch7.addConstraint(Sketcher.Constraint("Vertical", 0))
sketch7.addConstraint(Sketcher.Constraint("Horizontal", 1))
sketch7.addConstraint(Sketcher.Constraint("Vertical", 2))
sketch7.addConstraint(Sketcher.Constraint("Horizontal", 3))
sketch7.addConstraint(Sketcher.Constraint("Vertical", 4))
sketch7.addConstraint(Sketcher.Constraint("Horizontal", 5))
sketch7.addConstraint(Sketcher.Constraint("Vertical", 6))
sketch7.addConstraint(Sketcher.Constraint("Horizontal", 7))
sketch7.addConstraint(Sketcher.Constraint("Vertical", 8))
sketch7.addConstraint(Sketcher.Constraint("Horizontal", 9))
sketch7.addConstraint(Sketcher.Constraint("Horizontal", 11))
sketch7.addConstraint(Sketcher.Constraint("Horizontal", 13))
sketch7.addConstraint(Sketcher.Constraint("Vertical", 14))
sketch7.addConstraint(Sketcher.Constraint("Horizontal", 15))
sketch7.addConstraint(Sketcher.Constraint("Vertical", 16))
sketch7.addConstraint(Sketcher.Constraint("Horizontal", 17))
sketch7.addConstraint(Sketcher.Constraint("Vertical", 18))
sketch7.addConstraint(Sketcher.Constraint("Horizontal", 19))
sketch7.addConstraint(Sketcher.Constraint("Vertical", 20))
sketch7.addConstraint(Sketcher.Constraint("Horizontal", 21))
sketch7.addConstraint(Sketcher.Constraint("Vertical", 22))
sketch7.addConstraint(Sketcher.Constraint("Horizontal", 23))
sketch7.addConstraint(Sketcher.Constraint("Vertical", 24))
sketch7.addConstraint(Sketcher.Constraint("Horizontal", 25))
sketch7.addConstraint(Sketcher.Constraint("Vertical", 26))
sketch7.addConstraint(Sketcher.Constraint("Horizontal", 27))
sketch7.addConstraint(Sketcher.Constraint("Vertical", 28))
sketch7.addConstraint(Sketcher.Constraint("Horizontal", 29))
sketch7.addConstraint(Sketcher.Constraint("Vertical", 30))
sketch7.addConstraint(Sketcher.Constraint("Horizontal", 31))
sketch7.addConstraint(Sketcher.Constraint("Vertical", 32))
sketch7.addConstraint(Sketcher.Constraint("Horizontal", 33))
sketch7.addConstraint(Sketcher.Constraint("Vertical", 34))
sketch7.addConstraint(Sketcher.Constraint("Horizontal", 35))
sketch7.addConstraint(Sketcher.Constraint("Vertical", 36))
sketch7.addConstraint(Sketcher.Constraint("Horizontal", 37))
sketch7.addConstraint(Sketcher.Constraint("Vertical", 38))
sketch7.addConstraint(Sketcher.Constraint("Horizontal", 39))
sketch7.addConstraint(Sketcher.Constraint("Coincident", 33, 2, -1, 1))
sketch7.addConstraint(Sketcher.Constraint("Equal", 10, 12))
sketch7.addConstraint(Sketcher.Constraint("PointOnObject", 13, 2, -2))
sketch7.addConstraint(Sketcher.Constraint("PointOnObject", 28, 2, -1))
sketch7.addConstraint(Sketcher.Constraint("PointOnObject", 36, 2, -1))
sketch7.addConstraint(Sketcher.Constraint("Horizontal", 5, 2, 8, 2))
sketch7.addConstraint(Sketcher.Constraint("Horizontal", 10, 3, 12, 2))
sketch7.addConstraint(Sketcher.Constraint("Horizontal", 13, 2, 16, 2))
sketch7.addConstraint(Sketcher.Constraint("Horizontal", 15, 2, 18, 2))
sketch7.addConstraint(Sketcher.Constraint("Horizontal", 17, 2, 20, 2))
sketch7.addConstraint(Sketcher.Constraint("Horizontal", 1, 2, 24, 2))
sketch7.addConstraint(Sketcher.Constraint("Horizontal", 27, 2, 30, 2))
sketch7.addConstraint(Sketcher.Constraint("Horizontal", 31, 2, 34, 2))
sketch7.addConstraint(Sketcher.Constraint("Horizontal", 35, 2, 38, 2))
sketch7.addConstraint(Sketcher.Constraint("Vertical", 0, 2, 3, 2))
sketch7.addConstraint(Sketcher.Constraint("Vertical", 22, 2, 25, 2))
sketch7.addConstraint(Sketcher.Constraint("Vertical", 16, 2, 31, 2))
sketch7.addConstraint(Sketcher.Constraint("Equal", 7, 9))
sketch7.addConstraint(Sketcher.Constraint("Equal", 15, 19))
sketch7.addConstraint(Sketcher.Constraint("Equal", 3, 23))
sketch7.addConstraint(Sketcher.Constraint("Equal", 19, 29))
sketch7.addConstraint(Sketcher.Constraint("Equal", 29, 31))
sketch7.addConstraint(Sketcher.Constraint("Equal", 33, 37))
sketch7.addConstraint(Sketcher.Constraint("Equal", 27, 39))
sketch7.addConstraint(Sketcher.Constraint("Equal", 17, 0))
sketch7.addConstraint(Sketcher.Constraint("Equal", 25, 6))
sketch7.addConstraint(Sketcher.Constraint("Equal", 8, 14))
sketch7.addConstraint(Sketcher.Constraint("Equal", 20, 28))
sketch7.addConstraint(Sketcher.Constraint("Radius", 10, 40.0))
sketch7.addConstraint(Sketcher.Constraint("DistanceX", 1, 2, 1, 1, 3.0))
sketch7.addConstraint(Sketcher.Constraint("DistanceX", 5, 2, 5, 1, 13.0))
sketch7.addConstraint(Sketcher.Constraint("DistanceX", 7, 2, 7, 1, 10.0))
sketch7.addConstraint(Sketcher.Constraint("DistanceX", 13, 2, 13, 1, 5.0))
sketch7.addConstraint(Sketcher.Constraint("DistanceX", 15, 2, 15, 1, 20.0))
sketch7.addConstraint(Sketcher.Constraint("DistanceX", 17, 2, 17, 1, 23.0))
sketch7.addConstraint(Sketcher.Constraint("DistanceX", 21, 2, 21, 1, 15.0))
sketch7.addConstraint(Sketcher.Constraint("DistanceX", 35, 1, 35, 2, 100.0))
sketch7.addConstraint(Sketcher.Constraint("DistanceY", 10, 3, -1, 1, 50.0))
sketch7.addConstraint(Sketcher.Constraint("DistanceY", 4, 2, -1, 1, 45.0))
sketch7.addConstraint(Sketcher.Constraint("DistanceY", 22, 1, 22, 2, 10.668811))
sketch7.addConstraint(Sketcher.Constraint("DistanceY", 2, 2, 2, 1, 17.098974))
pad7 = doc.addObject("PartDesign::Pad", "Pad006")
body7.addObject(pad7)
pad7.Profile = sketch7
pad7.Length = 3

doc.recompute()
